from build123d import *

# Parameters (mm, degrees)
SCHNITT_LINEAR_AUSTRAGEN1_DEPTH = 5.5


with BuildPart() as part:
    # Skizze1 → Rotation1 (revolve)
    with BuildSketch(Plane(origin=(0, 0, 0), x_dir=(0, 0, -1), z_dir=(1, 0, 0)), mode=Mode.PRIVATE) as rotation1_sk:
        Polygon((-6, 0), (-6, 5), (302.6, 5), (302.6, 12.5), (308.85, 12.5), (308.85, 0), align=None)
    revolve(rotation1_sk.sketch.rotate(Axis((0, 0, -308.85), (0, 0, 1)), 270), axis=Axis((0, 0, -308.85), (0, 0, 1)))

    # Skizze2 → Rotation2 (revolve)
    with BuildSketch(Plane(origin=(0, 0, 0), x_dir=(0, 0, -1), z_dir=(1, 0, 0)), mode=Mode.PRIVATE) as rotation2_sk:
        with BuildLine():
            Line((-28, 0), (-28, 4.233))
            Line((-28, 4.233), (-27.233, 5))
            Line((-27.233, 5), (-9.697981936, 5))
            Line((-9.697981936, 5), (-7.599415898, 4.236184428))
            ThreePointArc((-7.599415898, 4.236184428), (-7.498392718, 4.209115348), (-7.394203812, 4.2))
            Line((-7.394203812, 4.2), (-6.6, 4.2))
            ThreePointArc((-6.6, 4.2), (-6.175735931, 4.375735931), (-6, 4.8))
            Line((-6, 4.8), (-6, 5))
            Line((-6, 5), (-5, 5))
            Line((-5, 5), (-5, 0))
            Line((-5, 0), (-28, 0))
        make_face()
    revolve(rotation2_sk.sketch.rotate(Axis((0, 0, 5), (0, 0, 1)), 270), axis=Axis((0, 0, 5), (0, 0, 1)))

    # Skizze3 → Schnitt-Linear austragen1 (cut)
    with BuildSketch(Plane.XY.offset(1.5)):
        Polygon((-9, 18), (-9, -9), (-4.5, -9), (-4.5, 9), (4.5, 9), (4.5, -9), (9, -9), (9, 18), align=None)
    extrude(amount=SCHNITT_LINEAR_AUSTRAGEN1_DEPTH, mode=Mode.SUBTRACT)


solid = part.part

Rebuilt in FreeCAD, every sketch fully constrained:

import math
import FreeCAD as App
import Part
import Sketcher
Q = App.Units.Quantity

doc = App.newDocument("Part")
body = doc.addObject("PartDesign::Body", "Body")

# Sketch on YZ plane
sketch1 = body.newObject("Sketcher::SketchObject", "Sketch")
sketch1.AttachmentSupport = (doc.getObject("YZ_Plane"), [""])
sketch1.MapMode = "FlatFace"
sketch1.addGeometry([
    Part.LineSegment(App.Vector(5, 6, 0), App.Vector(0, 6, 0)),  # 0
    Part.LineSegment(App.Vector(0, 6, 0), App.Vector(0, -308.85, 0)),  # 1
    Part.LineSegment(App.Vector(0, -308.85, 0), App.Vector(12.5, -308.85, 0)),  # 2
    Part.LineSegment(App.Vector(12.5, -308.85, 0), App.Vector(12.5, -302.6, 0)),  # 3
    Part.LineSegment(App.Vector(12.5, -302.6, 0), App.Vector(5, -302.6, 0)),  # 4
    Part.LineSegment(App.Vector(5, -302.6, 0), App.Vector(5, 6, 0)),  # 5
], False)
sketch1.addConstraint([
    Sketcher.Constraint("Coincident", 0, 2, 1, 1),
    Sketcher.Constraint("Coincident", 1, 2, 2, 1),
    Sketcher.Constraint("Coincident", 2, 2, 3, 1),
    Sketcher.Constraint("Coincident", 3, 2, 4, 1),
    Sketcher.Constraint("Coincident", 4, 2, 5, 1),
    Sketcher.Constraint("Coincident", 5, 2, 0, 1),
    Sketcher.Constraint("Horizontal", 0),
    Sketcher.Constraint("Vertical", 1),
    Sketcher.Constraint("Horizontal", 2),
    Sketcher.Constraint("Vertical", 3),
    Sketcher.Constraint("Horizontal", 4),
    Sketcher.Constraint("Vertical", 5),
    Sketcher.Constraint("PointOnObject", 0, 2, -2),
    Sketcher.Constraint("DistanceX", 0, 2, 0, 1, 5.0),
    Sketcher.Constraint("DistanceX", 2, 1, 2, 2, 12.5),
    Sketcher.Constraint("DistanceY", 5, 1, 5, 2, 308.6),
    Sketcher.Constraint("DistanceY", -1, 1, 0, 2, 6.0),
    Sketcher.Constraint("DistanceY", 1, 2, 1, 1, 314.85),
])
revolution = body.newObject("PartDesign::Revolution", "Revolution")
revolution.Profile = sketch1
revolution.ReferenceAxis = (sketch1, ["V_Axis"])
revolution.Angle = 360

# Sketch on YZ plane
sketch2 = body.newObject("Sketcher::SketchObject", "Sketch001")
sketch2.AttachmentSupport = (doc.getObject("YZ_Plane"), [""])
sketch2.MapMode = "FlatFace"
sketch2.addGeometry([
    Part.LineSegment(App.Vector(4.233, 28, 0), App.Vector(0, 28, 0)),  # 0
    Part.LineSegment(App.Vector(0, 28, 0), App.Vector(0, 5, 0)),  # 1
    Part.LineSegment(App.Vector(0, 5, 0), App.Vector(5, 5, 0)),  # 2
    Part.LineSegment(App.Vector(5, 5, 0), App.Vector(5, 6, 0)),  # 3
    Part.LineSegment(App.Vector(5, 6, 0), App.Vector(4.8, 6, 0)),  # 4
    Part.ArcOfCircle(Part.Circle(App.Vector(4.8, 6.6, 0), App.Vector(0, 0, 1), 0.6), math.radians(180), math.radians(270)),  # 5
    Part.LineSegment(App.Vector(4.2, 6.6, 0), App.Vector(4.2, 7.394204, 0)),  # 6
    Part.ArcOfCircle(Part.Circle(App.Vector(4.8, 7.394204, 0), App.Vector(0, 0, 1), 0.6), math.radians(160), math.radians(180)),  # 7
    Part.LineSegment(App.Vector(4.236184, 7.599416, 0), App.Vector(5, 9.697982, 0)),  # 8
    Part.LineSegment(App.Vector(5, 9.697982, 0), App.Vector(5, 27.233, 0)),  # 9
    Part.LineSegment(App.Vector(5, 27.233, 0), App.Vector(4.233, 28, 0)),  # 10
], False)
sketch2.addConstraint([
    Sketcher.Constraint("Coincident", 0, 2, 1, 1),
    Sketcher.Constraint("Coincident", 1, 2, 2, 1),
    Sketcher.Constraint("Coincident", 2, 2, 3, 1),
    Sketcher.Constraint("Coincident", 3, 2, 4, 1),
    Sketcher.Constraint("Tangent", 4, 2, 5, 2),
    Sketcher.Constraint("Tangent", 5, 1, 6, 1),
    Sketcher.Constraint("Tangent", 6, 2, 7, 2),
    Sketcher.Constraint("Tangent", 7, 1, 8, 1),
    Sketcher.Constraint("Coincident", 8, 2, 9, 1),
    Sketcher.Constraint("Coincident", 9, 2, 10, 1),
    Sketcher.Constraint("Coincident", 10, 2, 0, 1),
    Sketcher.Constraint("Horizontal", 0),
    Sketcher.Constraint("Vertical", 1),
    Sketcher.Constraint("Horizontal", 2),
    Sketcher.Constraint("Vertical", 3),
    Sketcher.Constraint("Horizontal", 4),
    Sketcher.Constraint("Vertical", 6),
    Sketcher.Constraint("Vertical", 9),
    Sketcher.Constraint("Equal", 5, 7),
    Sketcher.Constraint("PointOnObject", 0, 2, -2),
    Sketcher.Constraint("Vertical", 3, 2, 8, 2),
    Sketcher.Constraint("Radius", 5, 0.6),
    Sketcher.Constraint("DistanceX", 2, 1, 2, 2, 5.0),
    Sketcher.Constraint("DistanceY", 1, 2, 1, 1, 23.0),
    Sketcher.Constraint("DistanceY", 3, 1, 3, 2, 1.0),
    Sketcher.Constraint("Angle", 8, Q("70 deg")),
    Sketcher.Constraint("Angle", 10, Q("135 deg")),
    Sketcher.Constraint("DistanceX", 4, 2, 4, 1, 0.2),
    Sketcher.Constraint("DistanceY", -1, 1, 0, 2, 28.0),
    Sketcher.Constraint("DistanceX", 0, 2, 0, 1, 4.233),
    Sketcher.Constraint("DistanceY", 9, 1, 9, 2, 17.535018),
])
revolution2 = body.newObject("PartDesign::Revolution", "Revolution001")
revolution2.Profile = sketch2
revolution2.ReferenceAxis = (sketch2, ["V_Axis"])
revolution2.Angle = 360

# Sketch on XY plane
sketch3 = body.newObject("Sketcher::SketchObject", "Sketch002")
sketch3.AttachmentSupport = (doc.getObject("XY_Plane"), [""])
sketch3.MapMode = "FlatFace"
sketch3.AttachmentOffset = App.Placement(App.Vector(0, 0, 1.5), App.Rotation())
sketch3.addGeometry([
    Part.LineSegment(App.Vector(-9, 18, 0), App.Vector(-9, -9, 0)),  # 0
    Part.LineSegment(App.Vector(-9, -9, 0), App.Vector(-4.5, -9, 0)),  # 1
    Part.LineSegment(App.Vector(-4.5, -9, 0), App.Vector(-4.5, 9, 0)),  # 2
    Part.LineSegment(App.Vector(-4.5, 9, 0), App.Vector(4.5, 9, 0)),  # 3
    Part.LineSegment(App.Vector(4.5, 9, 0), App.Vector(4.5, -9, 0)),  # 4
    Part.LineSegment(App.Vector(4.5, -9, 0), App.Vector(9, -9, 0)),  # 5
    Part.LineSegment(App.Vector(9, -9, 0), App.Vector(9, 18, 0)),  # 6
    Part.LineSegment(App.Vector(9, 18, 0), App.Vector(-9, 18, 0)),  # 7
], False)
sketch3.addConstraint([
    Sketcher.Constraint("Coincident", 0, 2, 1, 1),
    Sketcher.Constraint("Coincident", 1, 2, 2, 1),
    Sketcher.Constraint("Coincident", 2, 2, 3, 1),
    Sketcher.Constraint("Coincident", 3, 2, 4, 1),
    Sketcher.Constraint("Coincident", 4, 2, 5, 1),
    Sketcher.Constraint("Coincident", 5, 2, 6, 1),
    Sketcher.Constraint("Coincident", 6, 2, 7, 1),
    Sketcher.Constraint("Coincident", 7, 2, 0, 1),
    Sketcher.Constraint("Vertical", 0),
    Sketcher.Constraint("Horizontal", 1),
    Sketcher.Constraint("Vertical", 2),
    Sketcher.Constraint("Horizontal", 3),
    Sketcher.Constraint("Vertical", 4),
    Sketcher.Constraint("Horizontal", 5),
    Sketcher.Constraint("Vertical", 6),
    Sketcher.Constraint("Horizontal", 7),
    Sketcher.Constraint("Symmetric", 1, 2, 3, 2, -1, 1),
    Sketcher.Constraint("Symmetric", 0, 2, 5, 2, -2),
    Sketcher.Constraint("Equal", 7, 2),
    Sketcher.Constraint("DistanceX", 3, 1, 3, 2, 9.0),
    Sketcher.Constraint("DistanceX", 7, 2, 7, 1, 18.0),
    Sketcher.Constraint("DistanceY", 0, 2, 0, 1, 27.0),
])
pocket1 = body.newObject("PartDesign::Pocket", "Pocket")
pocket1.Profile = sketch3
pocket1.Length = 5.5
pocket1.Reversed = True

doc.recompute()
